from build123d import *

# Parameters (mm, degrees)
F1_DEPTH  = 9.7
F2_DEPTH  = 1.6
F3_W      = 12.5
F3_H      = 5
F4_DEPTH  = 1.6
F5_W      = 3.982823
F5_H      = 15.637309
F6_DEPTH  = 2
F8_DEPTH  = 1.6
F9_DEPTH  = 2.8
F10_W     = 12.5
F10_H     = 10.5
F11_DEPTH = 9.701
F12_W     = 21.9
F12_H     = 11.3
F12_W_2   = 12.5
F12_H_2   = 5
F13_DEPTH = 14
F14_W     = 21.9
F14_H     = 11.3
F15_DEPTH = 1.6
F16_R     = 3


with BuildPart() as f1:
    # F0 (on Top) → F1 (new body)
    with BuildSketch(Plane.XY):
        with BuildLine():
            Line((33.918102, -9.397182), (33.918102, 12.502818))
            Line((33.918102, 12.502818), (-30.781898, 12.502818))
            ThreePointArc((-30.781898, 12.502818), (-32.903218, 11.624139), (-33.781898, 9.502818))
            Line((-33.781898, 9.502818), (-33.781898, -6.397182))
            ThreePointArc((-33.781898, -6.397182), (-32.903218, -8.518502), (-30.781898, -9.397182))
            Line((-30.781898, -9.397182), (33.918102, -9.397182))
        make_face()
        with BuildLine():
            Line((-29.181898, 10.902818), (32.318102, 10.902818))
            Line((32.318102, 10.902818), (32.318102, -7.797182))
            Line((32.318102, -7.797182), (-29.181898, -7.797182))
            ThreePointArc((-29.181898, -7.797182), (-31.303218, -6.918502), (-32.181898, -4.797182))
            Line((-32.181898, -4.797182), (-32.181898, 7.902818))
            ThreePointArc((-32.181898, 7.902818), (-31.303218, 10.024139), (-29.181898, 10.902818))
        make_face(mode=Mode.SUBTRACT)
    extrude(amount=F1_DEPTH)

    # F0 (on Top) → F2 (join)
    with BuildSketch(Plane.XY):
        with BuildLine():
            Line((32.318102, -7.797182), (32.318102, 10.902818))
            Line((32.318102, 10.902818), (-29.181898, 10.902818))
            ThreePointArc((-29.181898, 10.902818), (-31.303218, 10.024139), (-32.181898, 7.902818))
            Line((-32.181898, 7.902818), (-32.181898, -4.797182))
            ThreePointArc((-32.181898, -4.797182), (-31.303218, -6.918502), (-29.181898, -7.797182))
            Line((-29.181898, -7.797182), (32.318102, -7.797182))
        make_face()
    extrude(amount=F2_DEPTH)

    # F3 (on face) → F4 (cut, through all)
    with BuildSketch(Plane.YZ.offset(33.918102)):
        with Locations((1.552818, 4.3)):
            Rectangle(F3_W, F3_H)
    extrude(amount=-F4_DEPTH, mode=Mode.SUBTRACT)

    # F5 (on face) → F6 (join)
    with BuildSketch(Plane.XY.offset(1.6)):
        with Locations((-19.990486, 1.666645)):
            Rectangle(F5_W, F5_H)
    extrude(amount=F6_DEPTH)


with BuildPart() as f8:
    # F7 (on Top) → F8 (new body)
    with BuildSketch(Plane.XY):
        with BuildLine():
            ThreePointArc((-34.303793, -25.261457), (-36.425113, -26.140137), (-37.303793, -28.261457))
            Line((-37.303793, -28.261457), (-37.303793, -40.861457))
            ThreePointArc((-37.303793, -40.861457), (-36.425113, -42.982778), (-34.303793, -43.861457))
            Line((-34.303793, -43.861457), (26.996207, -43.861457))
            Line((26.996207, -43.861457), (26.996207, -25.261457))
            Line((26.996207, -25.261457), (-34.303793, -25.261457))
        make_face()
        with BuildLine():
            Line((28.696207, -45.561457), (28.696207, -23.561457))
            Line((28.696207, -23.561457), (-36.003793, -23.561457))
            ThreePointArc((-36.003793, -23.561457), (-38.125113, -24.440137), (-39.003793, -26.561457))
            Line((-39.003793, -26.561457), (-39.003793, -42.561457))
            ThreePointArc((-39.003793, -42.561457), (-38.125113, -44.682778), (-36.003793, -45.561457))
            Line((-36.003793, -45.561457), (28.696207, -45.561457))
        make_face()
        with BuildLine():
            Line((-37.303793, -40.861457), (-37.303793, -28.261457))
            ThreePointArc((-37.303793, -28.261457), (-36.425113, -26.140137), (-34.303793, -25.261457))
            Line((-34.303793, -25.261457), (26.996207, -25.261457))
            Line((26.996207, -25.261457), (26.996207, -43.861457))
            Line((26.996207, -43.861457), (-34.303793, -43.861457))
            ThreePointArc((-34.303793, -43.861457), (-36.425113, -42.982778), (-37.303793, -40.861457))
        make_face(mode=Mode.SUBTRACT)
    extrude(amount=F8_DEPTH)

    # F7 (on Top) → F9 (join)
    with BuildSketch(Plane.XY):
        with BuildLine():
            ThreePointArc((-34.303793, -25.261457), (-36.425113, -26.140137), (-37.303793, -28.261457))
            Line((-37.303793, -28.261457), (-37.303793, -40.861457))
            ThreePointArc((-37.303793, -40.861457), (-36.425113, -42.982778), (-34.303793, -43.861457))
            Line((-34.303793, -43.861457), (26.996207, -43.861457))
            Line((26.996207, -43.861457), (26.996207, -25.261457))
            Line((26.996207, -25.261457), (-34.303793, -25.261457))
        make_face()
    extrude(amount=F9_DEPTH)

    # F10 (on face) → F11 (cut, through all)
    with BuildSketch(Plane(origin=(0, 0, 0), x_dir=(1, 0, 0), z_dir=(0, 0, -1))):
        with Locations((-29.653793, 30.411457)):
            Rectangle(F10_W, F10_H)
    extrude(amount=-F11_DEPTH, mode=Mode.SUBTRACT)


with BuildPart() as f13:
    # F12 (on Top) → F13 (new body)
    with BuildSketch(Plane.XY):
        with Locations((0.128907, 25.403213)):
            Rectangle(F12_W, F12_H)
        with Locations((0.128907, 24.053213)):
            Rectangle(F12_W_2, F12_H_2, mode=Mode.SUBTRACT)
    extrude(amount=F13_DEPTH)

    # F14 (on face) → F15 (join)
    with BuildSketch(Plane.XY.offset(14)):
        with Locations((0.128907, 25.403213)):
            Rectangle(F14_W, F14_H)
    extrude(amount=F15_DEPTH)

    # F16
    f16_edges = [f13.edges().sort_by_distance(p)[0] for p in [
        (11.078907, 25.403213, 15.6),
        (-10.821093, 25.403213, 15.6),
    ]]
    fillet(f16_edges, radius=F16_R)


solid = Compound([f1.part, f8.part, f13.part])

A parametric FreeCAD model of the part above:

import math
import FreeCAD as App
import Part
import Sketcher
Q = App.Units.Quantity


def edges_at(feature, points):
    """Names of the edges that pass closest to the given points."""
    edges = feature.Shape.Edges
    near = lambda p: min(range(len(edges)), key=lambda i: edges[i].distToShape(Part.Vertex(*p))[0])
    return sorted({f"Edge{near(p) + 1}" for p in points})


def add_polygon(sketch, points):
    """Adds a closed chain of lines whose ends are joined by coincident constraints."""
    first, n = sketch.GeometryCount, len(points)
    for a, b in zip(points, points[1:] + points[:1]):
        sketch.addGeometry(Part.LineSegment(App.Vector(*a, 0), App.Vector(*b, 0)), False)
    for i in range(n):
        sketch.addConstraint(Sketcher.Constraint("Coincident", first + i, 2, first + (i + 1) % n, 1))

doc = App.newDocument("Part")
body = doc.addObject("PartDesign::Body", "Body")

sketch1 = doc.addObject("Sketcher::SketchObject", "Sketch")
body.addObject(sketch1)
sketch1.AttachmentSupport = (doc.XY_Plane, [""])
sketch1.MapMode = "FlatFace"
sketch1.addGeometry([
    Part.LineSegment(App.Vector(33.9, -9.4, 0), App.Vector(33.9, 12.5, 0)),
    Part.LineSegment(App.Vector(33.9, 12.5, 0), App.Vector(-30.8, 12.5, 0)),
    Part.ArcOfCircle(Part.Circle(App.Vector(-30.8, 9.5, 0), App.Vector(0, 0, 1), 3), math.radians(90), math.radians(180)),
    Part.LineSegment(App.Vector(-33.8, 9.5, 0), App.Vector(-33.8, -6.4, 0)),
    Part.ArcOfCircle(Part.Circle(App.Vector(-30.8, -6.4, 0), App.Vector(0, 0, 1), 3), math.radians(-180), math.radians(-90)),
    Part.LineSegment(App.Vector(-30.8, -9.4, 0), App.Vector(33.9, -9.4, 0)),
    Part.ArcOfCircle(Part.Circle(App.Vector(-29.2, 7.9, 0), App.Vector(0, 0, 1), 3), math.radians(90), math.radians(180)),
    Part.LineSegment(App.Vector(-29.2, 10.9, 0), App.Vector(32.3, 10.9, 0)),
    Part.LineSegment(App.Vector(32.3, 10.9, 0), App.Vector(32.3, -7.8, 0)),
    Part.LineSegment(App.Vector(32.3, -7.8, 0), App.Vector(-29.2, -7.8, 0)),
    Part.ArcOfCircle(Part.Circle(App.Vector(-29.2, -4.8, 0), App.Vector(0, 0, 1), 3), math.radians(-180), math.radians(-90)),
    Part.LineSegment(App.Vector(-32.2, -4.8, 0), App.Vector(-32.2, 7.9, 0)),
], False)
sketch1.addConstraint([
    Sketcher.Constraint("Coincident", 0, 2, 1, 1),
    Sketcher.Constraint("Tangent", 1, 2, 2, 1),
    Sketcher.Constraint("Tangent", 2, 2, 3, 1),
    Sketcher.Constraint("Tangent", 3, 2, 4, 1),
    Sketcher.Constraint("Tangent", 4, 2, 5, 1),
    Sketcher.Constraint("Coincident", 5, 2, 0, 1),
    Sketcher.Constraint("Tangent", 6, 1, 7, 1),
    Sketcher.Constraint("Coincident", 7, 2, 8, 1),
    Sketcher.Constraint("Coincident", 8, 2, 9, 1),
    Sketcher.Constraint("Tangent", 9, 2, 10, 2),
    Sketcher.Constraint("Tangent", 10, 1, 11, 1),
    Sketcher.Constraint("Tangent", 11, 2, 6, 2),
    Sketcher.Constraint("Vertical", 0),
    Sketcher.Constraint("Horizontal", 1),
    Sketcher.Constraint("Vertical", 3),
    Sketcher.Constraint("Horizontal", 5),
    Sketcher.Constraint("Horizontal", 7),
    Sketcher.Constraint("Vertical", 8),
    Sketcher.Constraint("Horizontal", 9),
    Sketcher.Constraint("Vertical", 11),
    Sketcher.Constraint("Equal", 2, 4),
    Sketcher.Constraint("Equal", 4, 6),
    Sketcher.Constraint("Equal", 6, 10),
    Sketcher.Constraint("Radius", 2, Q("2.999999 mm")),
    Sketcher.Constraint("DistanceX", 1, 2, 1, 1, Q("64.7 mm")),
    Sketcher.Constraint("DistanceX", 7, 1, 7, 2, Q("61.5 mm")),
    Sketcher.Constraint("DistanceY", 0, 1, 0, 2, Q("21.9 mm")),
    Sketcher.Constraint("DistanceY", 8, 2, 8, 1, Q("18.7 mm")),
    Sketcher.Constraint("DistanceX", 2, 3, 6, 3, Q("1.6 mm")),
    Sketcher.Constraint("DistanceY", 6, 3, 2, 3, Q("1.6 mm")),
    Sketcher.Constraint("DistanceX", 2, 3, -1, 1, Q("30.781899 mm")),
    Sketcher.Constraint("DistanceY", -1, 1, 2, 3, Q("9.502819 mm")),
])
pad1 = doc.addObject("PartDesign::Pad", "Pad")
body.addObject(pad1)
pad1.Profile = sketch1
pad1.Length = 9.7

sketch2 = doc.addObject("Sketcher::SketchObject", "Sketch001")
body.addObject(sketch2)
sketch2.AttachmentSupport = (doc.XY_Plane, [""])
sketch2.MapMode = "FlatFace"
sketch2.addGeometry([
    Part.LineSegment(App.Vector(32.3, -7.8, 0), App.Vector(32.3, 10.9, 0)),
    Part.LineSegment(App.Vector(32.3, 10.9, 0), App.Vector(-29.2, 10.9, 0)),
    Part.ArcOfCircle(Part.Circle(App.Vector(-29.2, 7.9, 0), App.Vector(0, 0, 1), 3), math.radians(90), math.radians(180)),
    Part.LineSegment(App.Vector(-32.2, 7.9, 0), App.Vector(-32.2, -4.8, 0)),
    Part.ArcOfCircle(Part.Circle(App.Vector(-29.2, -4.8, 0), App.Vector(0, 0, 1), 3), math.radians(-180), math.radians(-90)),
    Part.LineSegment(App.Vector(-29.2, -7.8, 0), App.Vector(32.3, -7.8, 0)),
], False)
sketch2.addConstraint([
    Sketcher.Constraint("Coincident", 0, 2, 1, 1),
    Sketcher.Constraint("Tangent", 1, 2, 2, 1),
    Sketcher.Constraint("Tangent", 2, 2, 3, 1),
    Sketcher.Constraint("Tangent", 3, 2, 4, 1),
    Sketcher.Constraint("Tangent", 4, 2, 5, 1),
    Sketcher.Constraint("Coincident", 5, 2, 0, 1),
    Sketcher.Constraint("Vertical", 0),
    Sketcher.Constraint("Horizontal", 1),
    Sketcher.Constraint("Vertical", 3),
    Sketcher.Constraint("Horizontal", 5),
    Sketcher.Constraint("Equal", 2, 4),
    Sketcher.Constraint("Radius", 2, Q("2.999999 mm")),
    Sketcher.Constraint("DistanceX", 1, 2, 1, 1, Q("61.5 mm")),
    Sketcher.Constraint("DistanceY", 0, 1, 0, 2, Q("18.7 mm")),
    Sketcher.Constraint("DistanceX", 2, 3, -1, 1, Q("29.181899 mm")),
    Sketcher.Constraint("DistanceY", -1, 1, 2, 3, Q("7.902819 mm")),
])
pad2 = doc.addObject("PartDesign::Pad", "Pad001")
body.addObject(pad2)
pad2.Profile = sketch2
pad2.Length = 1.6

sketch3 = doc.addObject("Sketcher::SketchObject", "Sketch002")
body.addObject(sketch3)
sketch3.AttachmentSupport = (doc.YZ_Plane, [""])
sketch3.MapMode = "FlatFace"
sketch3.AttachmentOffset = App.Placement(App.Vector(0, 0, 33.918102), App.Rotation())
add_polygon(sketch3, [(-5, 7), (-5, 2), (8, 2), (8, 7)])
sketch3.addConstraint([
    Sketcher.Constraint("Vertical", 0),
    Sketcher.Constraint("Horizontal", 1),
    Sketcher.Constraint("Vertical", 2),
    Sketcher.Constraint("Horizontal", 3),
    Sketcher.Constraint("DistanceY", 0, 2, 0, 1, Q("5 mm")),
    Sketcher.Constraint("DistanceX", 1, 1, 1, 2, Q("12.5 mm")),
    Sketcher.Constraint("DistanceY", -1, 1, 0, 2, Q("1.8 mm")),
    Sketcher.Constraint("DistanceX", 0, 2, -1, 1, Q("4.697182 mm")),
])
pocket1 = doc.addObject("PartDesign::Pocket", "Pocket")
body.addObject(pocket1)
pocket1.Profile = sketch3
pocket1.Length = 1.6

sketch4 = doc.addObject("Sketcher::SketchObject", "Sketch003")
body.addObject(sketch4)
sketch4.AttachmentSupport = (doc.XY_Plane, [""])
sketch4.MapMode = "FlatFace"
sketch4.AttachmentOffset = App.Placement(App.Vector(0, 0, 1.6), App.Rotation())
add_polygon(sketch4, [(-22, 9.5), (-22, -6.2), (-18, -6.2), (-18, 9.5)])
sketch4.addConstraint([
    Sketcher.Constraint("Vertical", 0),
    Sketcher.Constraint("Horizontal", 1),
    Sketcher.Constraint("Vertical", 2),
    Sketcher.Constraint("Horizontal", 3),
    Sketcher.Constraint("DistanceY", 0, 2, 0, 1, Q("15.637309 mm")),
    Sketcher.Constraint("DistanceY", -1, 1, 2, 2, Q("9.485299 mm")),
    Sketcher.Constraint("DistanceX", 1, 1, 1, 2, Q("3.982823 mm")),
    Sketcher.Constraint("DistanceX", 0, 2, -1, 1, Q("21.981897 mm")),
])
pad3 = doc.addObject("PartDesign::Pad", "Pad002")
body.addObject(pad3)
pad3.Profile = sketch4
pad3.Length = 2
body2 = doc.addObject("PartDesign::Body", "Body001")

sketch5 = doc.addObject("Sketcher::SketchObject", "Sketch004")
body2.addObject(sketch5)
sketch5.AttachmentSupport = (doc.getObject("XY_Plane001"), [""])
sketch5.MapMode = "FlatFace"
sketch5.addGeometry([
    Part.LineSegment(App.Vector(28.7, -45.6, 0), App.Vector(28.7, -23.6, 0)),
    Part.LineSegment(App.Vector(28.7, -23.6, 0), App.Vector(-36, -23.6, 0)),
    Part.ArcOfCircle(Part.Circle(App.Vector(-36, -26.6, 0), App.Vector(0, 0, 1), 3), math.radians(90), math.radians(180)),
    Part.LineSegment(App.Vector(-39, -26.6, 0), App.Vector(-39, -42.6, 0)),
    Part.ArcOfCircle(Part.Circle(App.Vector(-36, -42.6, 0), App.Vector(0, 0, 1), 3), math.radians(180), math.radians(270)),
    Part.LineSegment(App.Vector(-36, -45.6, 0), App.Vector(28.7, -45.6, 0)),
    Part.ArcOfCircle(Part.Circle(App.Vector(-34.3, -40.9, 0), App.Vector(0, 0, 1), 3), math.radians(180), math.radians(270)),
    Part.LineSegment(App.Vector(-37.3, -40.9, 0), App.Vector(-37.3, -28.3, 0)),
    Part.ArcOfCircle(Part.Circle(App.Vector(-34.3, -28.3, 0), App.Vector(0, 0, 1), 3), math.radians(90), math.radians(180)),
    Part.LineSegment(App.Vector(-34.3, -25.3, 0), App.Vector(27, -25.3, 0)),
    Part.LineSegment(App.Vector(27, -25.3, 0), App.Vector(27, -43.9, 0)),
    Part.LineSegment(App.Vector(27, -43.9, 0), App.Vector(-34.3, -43.9, 0)),
], False)
sketch5.addConstraint([
    Sketcher.Constraint("Coincident", 0, 2, 1, 1),
    Sketcher.Constraint("Tangent", 1, 2, 2, 1),
    Sketcher.Constraint("Tangent", 2, 2, 3, 1),
    Sketcher.Constraint("Tangent", 3, 2, 4, 1),
    Sketcher.Constraint("Tangent", 4, 2, 5, 1),
    Sketcher.Constraint("Coincident", 5, 2, 0, 1),
    Sketcher.Constraint("Tangent", 6, 1, 7, 1),
    Sketcher.Constraint("Tangent", 7, 2, 8, 2),
    Sketcher.Constraint("Tangent", 8, 1, 9, 1),
    Sketcher.Constraint("Coincident", 9, 2, 10, 1),
    Sketcher.Constraint("Coincident", 10, 2, 11, 1),
    Sketcher.Constraint("Tangent", 11, 2, 6, 2),
    Sketcher.Constraint("Vertical", 0),
    Sketcher.Constraint("Horizontal", 1),
    Sketcher.Constraint("Vertical", 3),
    Sketcher.Constraint("Horizontal", 5),
    Sketcher.Constraint("Vertical", 7),
    Sketcher.Constraint("Horizontal", 9),
    Sketcher.Constraint("Vertical", 10),
    Sketcher.Constraint("Horizontal", 11),
    Sketcher.Constraint("Equal", 2, 4),
    Sketcher.Constraint("Equal", 4, 6),
    Sketcher.Constraint("Equal", 6, 8),
    Sketcher.Constraint("Radius", 2, Q("3.000001 mm")),
    Sketcher.Constraint("DistanceY", 0, 1, 0, 2, Q("22 mm")),
    Sketcher.Constraint("DistanceX", 1, 2, 1, 1, Q("64.7 mm")),
    Sketcher.Constraint("DistanceX", 9, 1, 9, 2, Q("61.3 mm")),
    Sketcher.Constraint("DistanceY", 7, 1, 7, 2, Q("12.6 mm")),
    Sketcher.Constraint("DistanceX", 8, 3, 0, 2, Q("62.999999 mm")),
    Sketcher.Constraint("DistanceY", 4, 3, 6, 3, Q("1.7 mm")),
    Sketcher.Constraint("DistanceX", 2, 3, -1, 1, Q("36.003792 mm")),
    Sketcher.Constraint("DistanceY", 2, 3, -1, 1, Q("26.561458 mm")),
])
pad4 = doc.addObject("PartDesign::Pad", "Pad003")
body2.addObject(pad4)
pad4.Profile = sketch5
pad4.Length = 1.6

sketch6 = doc.addObject("Sketcher::SketchObject", "Sketch005")
body2.addObject(sketch6)
sketch6.AttachmentSupport = (doc.getObject("XY_Plane001"), [""])
sketch6.MapMode = "FlatFace"
sketch6.addGeometry([
    Part.ArcOfCircle(Part.Circle(App.Vector(-34.3, -28.3, 0), App.Vector(0, 0, 1), 3), math.radians(90), math.radians(180)),
    Part.LineSegment(App.Vector(-37.3, -28.3, 0), App.Vector(-37.3, -40.9, 0)),
    Part.ArcOfCircle(Part.Circle(App.Vector(-34.3, -40.9, 0), App.Vector(0, 0, 1), 3), math.radians(180), math.radians(270)),
    Part.LineSegment(App.Vector(-34.3, -43.9, 0), App.Vector(27, -43.9, 0)),
    Part.LineSegment(App.Vector(27, -43.9, 0), App.Vector(27, -25.3, 0)),
    Part.LineSegment(App.Vector(27, -25.3, 0), App.Vector(-34.3, -25.3, 0)),
], False)
sketch6.addConstraint([
    Sketcher.Constraint("Tangent", 0, 2, 1, 1),
    Sketcher.Constraint("Tangent", 1, 2, 2, 1),
    Sketcher.Constraint("Tangent", 2, 2, 3, 1),
    Sketcher.Constraint("Coincident", 3, 2, 4, 1),
    Sketcher.Constraint("Coincident", 4, 2, 5, 1),
    Sketcher.Constraint("Tangent", 5, 2, 0, 1),
    Sketcher.Constraint("Vertical", 1),
    Sketcher.Constraint("Horizontal", 3),
    Sketcher.Constraint("Vertical", 4),
    Sketcher.Constraint("Horizontal", 5),
    Sketcher.Constraint("Equal", 0, 2),
    Sketcher.Constraint("Radius", 0, Q("3.000001 mm")),
    Sketcher.Constraint("DistanceX", 3, 1, 3, 2, Q("61.3 mm")),
    Sketcher.Constraint("DistanceY", 1, 2, 1, 1, Q("12.6 mm")),
    Sketcher.Constraint("DistanceX", 0, 3, -1, 1, Q("34.303792 mm")),
    Sketcher.Constraint("DistanceY", 0, 3, -1, 1, Q("28.261458 mm")),
])
pad5 = doc.addObject("PartDesign::Pad", "Pad004")
body2.addObject(pad5)
pad5.Profile = sketch6
pad5.Length = 2.8

sketch7 = doc.addObject("Sketcher::SketchObject", "Sketch006")
body2.addObject(sketch7)
sketch7.AttachmentSupport = (doc.getObject("XY_Plane001"), [""])
sketch7.MapMode = "FlatFace"
add_polygon(sketch7, [(-36, -36), (-36, -25), (-23, -25), (-23, -36)])
sketch7.addConstraint([
    Sketcher.Constraint("Vertical", 0),
    Sketcher.Constraint("Horizontal", 1),
    Sketcher.Constraint("Vertical", 2),
    Sketcher.Constraint("Horizontal", 3),
    Sketcher.Constraint("DistanceX", 1, 1, 1, 2, Q("12.5 mm")),
    Sketcher.Constraint("DistanceY", 0, 1, 0, 2, Q("10.5 mm")),
    Sketcher.Constraint("DistanceX", 0, 2, -1, 1, Q("35.903793 mm")),
    Sketcher.Constraint("DistanceY", 0, 2, -1, 1, Q("25.161457 mm")),
])
pocket2 = doc.addObject("PartDesign::Pocket", "Pocket001")
body2.addObject(pocket2)
pocket2.Profile = sketch7
pocket2.Type = "ThroughAll"
pocket2.Reversed = True
body3 = doc.addObject("PartDesign::Body", "Body002")

sketch8 = doc.addObject("Sketcher::SketchObject", "Sketch007")
body3.addObject(sketch8)
sketch8.AttachmentSupport = (doc.getObject("XY_Plane002"), [""])
sketch8.MapMode = "FlatFace"
add_polygon(sketch8, [(-11, 31), (-11, 20), (11, 20), (11, 31)])
add_polygon(sketch8, [(6, 22), (-6, 22), (-6, 27), (6, 27)])
sketch8.addConstraint([
    Sketcher.Constraint("Vertical", 0),
    Sketcher.Constraint("Horizontal", 1),
    Sketcher.Constraint("Vertical", 2),
    Sketcher.Constraint("Horizontal", 3),
    Sketcher.Constraint("Horizontal", 4),
    Sketcher.Constraint("Vertical", 5),
    Sketcher.Constraint("Horizontal", 6),
    Sketcher.Constraint("Vertical", 7),
    Sketcher.Constraint("DistanceY", 5, 1, 5, 2, Q("5 mm")),
    Sketcher.Constraint("DistanceX", 1, 1, 1, 2, Q("21.9 mm")),
    Sketcher.Constraint("DistanceX", 4, 2, 4, 1, Q("12.5 mm")),
    Sketcher.Constraint("DistanceY", 0, 2, 0, 1, Q("11.3 mm")),
    Sketcher.Constraint("DistanceX", 0, 2, 4, 2, Q("4.7 mm")),
    Sketcher.Constraint("DistanceY", 0, 2, 4, 2, Q("1.8 mm")),
    Sketcher.Constraint("DistanceX", 0, 2, -1, 1, Q("10.821093 mm")),
    Sketcher.Constraint("DistanceY", -1, 1, 0, 2, Q("19.753213 mm")),
])
pad6 = doc.addObject("PartDesign::Pad", "Pad005")
body3.addObject(pad6)
pad6.Profile = sketch8
pad6.Length = 14

sketch9 = doc.addObject("Sketcher::SketchObject", "Sketch008")
body3.addObject(sketch9)
sketch9.AttachmentSupport = (doc.getObject("XY_Plane002"), [""])
sketch9.MapMode = "FlatFace"
sketch9.AttachmentOffset = App.Placement(App.Vector(0, 0, 14), App.Rotation())
add_polygon(sketch9, [(-11, 31), (-11, 20), (11, 20), (11, 31)])
sketch9.addConstraint([
    Sketcher.Constraint("Vertical", 0),
    Sketcher.Constraint("Horizontal", 1),
    Sketcher.Constraint("Vertical", 2),
    Sketcher.Constraint("Horizontal", 3),
    Sketcher.Constraint("DistanceX", 1, 1, 1, 2, Q("21.9 mm")),
    Sketcher.Constraint("DistanceY", 0, 2, 0, 1, Q("11.3 mm")),
    Sketcher.Constraint("DistanceX", 0, 2, -1, 1, Q("10.821093 mm")),
    Sketcher.Constraint("DistanceY", -1, 1, 0, 2, Q("19.753213 mm")),
])
pad7 = doc.addObject("PartDesign::Pad", "Pad006")
body3.addObject(pad7)
pad7.Profile = sketch9
pad7.Length = 1.6
doc.recompute()

fillet = doc.addObject("PartDesign::Fillet", "Fillet")
body3.addObject(fillet)
fillet.Base = (pad7, edges_at(pad7, [(11.079, 25.403, 15.6), (-10.821, 25.403, 15.6)]))
fillet.Radius = 3

doc.recompute()
